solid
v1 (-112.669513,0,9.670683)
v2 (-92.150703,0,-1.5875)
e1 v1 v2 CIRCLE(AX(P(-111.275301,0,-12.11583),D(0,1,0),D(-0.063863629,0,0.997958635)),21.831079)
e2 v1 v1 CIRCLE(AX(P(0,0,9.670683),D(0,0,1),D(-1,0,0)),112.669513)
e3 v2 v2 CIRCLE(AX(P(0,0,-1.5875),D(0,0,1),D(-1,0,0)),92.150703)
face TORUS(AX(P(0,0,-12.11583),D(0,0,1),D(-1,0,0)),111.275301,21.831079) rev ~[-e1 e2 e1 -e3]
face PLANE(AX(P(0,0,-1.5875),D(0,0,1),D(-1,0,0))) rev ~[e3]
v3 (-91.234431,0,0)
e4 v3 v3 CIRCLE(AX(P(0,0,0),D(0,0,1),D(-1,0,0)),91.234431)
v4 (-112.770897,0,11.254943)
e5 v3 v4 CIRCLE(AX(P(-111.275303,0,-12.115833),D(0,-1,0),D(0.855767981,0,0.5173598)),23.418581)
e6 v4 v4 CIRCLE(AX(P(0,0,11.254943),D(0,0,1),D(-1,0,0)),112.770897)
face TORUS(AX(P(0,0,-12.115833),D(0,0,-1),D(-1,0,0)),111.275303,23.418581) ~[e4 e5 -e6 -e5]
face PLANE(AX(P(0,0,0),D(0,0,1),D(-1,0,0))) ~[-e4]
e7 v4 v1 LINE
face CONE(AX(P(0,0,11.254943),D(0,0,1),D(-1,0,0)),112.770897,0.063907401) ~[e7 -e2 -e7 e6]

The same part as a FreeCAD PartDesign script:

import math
import FreeCAD as App
import Part
import Sketcher
Q = App.Units.Quantity

doc = App.newDocument("Part")
body = doc.addObject("PartDesign::Body", "Body")

# Sketch on XZ plane
sketch1 = doc.addObject("Sketcher::SketchObject", "Sketch")
body.addObject(sketch1)
sketch1.AttachmentSupport = (doc.XZ_Plane, [""])
sketch1.MapMode = "FlatFace"
sketch1.addGeometry(Part.LineSegment(App.Vector(0, -1.5875, 0), App.Vector(0, 0, 0)), False)
sketch1.addGeometry(Part.LineSegment(App.Vector(0, 0, 0), App.Vector(-91.234431, 0, 0)), False)
sketch1.addGeometry(Part.ArcOfCircle(Part.Circle(App.Vector(-111.275303, -12.115833, 0), App.Vector(0, 0, 1), 23.418581), math.radians(31.155318), math.radians(93.661604)), False)
sketch1.addGeometry(Part.LineSegment(App.Vector(-112.770897, 11.254943, 0), App.Vector(-112.669513, 9.670683, 0)), False)
sketch1.addGeometry(Part.ArcOfCircle(Part.Circle(App.Vector(-111.275301, -12.11583, 0), App.Vector(0, 0, 1), 21.831079), math.radians(28.833334), math.radians(93.661608)), False)
sketch1.addGeometry(Part.LineSegment(App.Vector(-92.150703, -1.5875, 0), App.Vector(0, -1.5875, 0)), False)
sketch1.addConstraint(Sketcher.Constraint("Coincident", 0, 2, 1, 1))
sketch1.addConstraint(Sketcher.Constraint("Coincident", 1, 2, 2, 1))
sketch1.addConstraint(Sketcher.Constraint("Coincident", 2, 2, 3, 1))
sketch1.addConstraint(Sketcher.Constraint("Coincident", 3, 2, 4, 2))
sketch1.addConstraint(Sketcher.Constraint("Coincident", 4, 1, 5, 1))
sketch1.addConstraint(Sketcher.Constraint("Coincident", 5, 2, 0, 1))
sketch1.addConstraint(Sketcher.Constraint("Vertical", 0))
sketch1.addConstraint(Sketcher.Constraint("Horizontal", 1))
sketch1.addConstraint(Sketcher.Constraint("Horizontal", 5))
sketch1.addConstraint(Sketcher.Constraint("Coincident", 0, 2, -1, 1))
sketch1.addConstraint(Sketcher.Constraint("Coincident", 4, 3, 2, 3))
sketch1.addConstraint(Sketcher.Constraint("DistanceY", 0, 1, 0, 2, Q("0.0625 in")))
sketch1.addConstraint(Sketcher.Constraint("Distance", 3, Q("0.0625 in")))
sketch1.addConstraint(Sketcher.Constraint("Radius", 2, Q("23.418581 mm")))
sketch1.addConstraint(Sketcher.Constraint("DistanceX", 1, 2, 1, 1, Q("91.234431 mm")))
sketch1.addConstraint(Sketcher.Constraint("DistanceX", 4, 3, -1, 1, Q("111.275301 mm")))
sketch1.addConstraint(Sketcher.Constraint("DistanceY", 3, 2, 2, 2, Q("1.58426 mm")))
sketch1.addConstraint(Sketcher.Constraint("DistanceX", 3, 2, 4, 3, Q("1.394212 mm")))
revolution = doc.addObject("PartDesign::Revolution", "Revolution")
body.addObject(revolution)
revolution.Profile = sketch1
revolution.ReferenceAxis = (sketch1, ["V_Axis"])
revolution.Angle = 360

doc.recompute()
